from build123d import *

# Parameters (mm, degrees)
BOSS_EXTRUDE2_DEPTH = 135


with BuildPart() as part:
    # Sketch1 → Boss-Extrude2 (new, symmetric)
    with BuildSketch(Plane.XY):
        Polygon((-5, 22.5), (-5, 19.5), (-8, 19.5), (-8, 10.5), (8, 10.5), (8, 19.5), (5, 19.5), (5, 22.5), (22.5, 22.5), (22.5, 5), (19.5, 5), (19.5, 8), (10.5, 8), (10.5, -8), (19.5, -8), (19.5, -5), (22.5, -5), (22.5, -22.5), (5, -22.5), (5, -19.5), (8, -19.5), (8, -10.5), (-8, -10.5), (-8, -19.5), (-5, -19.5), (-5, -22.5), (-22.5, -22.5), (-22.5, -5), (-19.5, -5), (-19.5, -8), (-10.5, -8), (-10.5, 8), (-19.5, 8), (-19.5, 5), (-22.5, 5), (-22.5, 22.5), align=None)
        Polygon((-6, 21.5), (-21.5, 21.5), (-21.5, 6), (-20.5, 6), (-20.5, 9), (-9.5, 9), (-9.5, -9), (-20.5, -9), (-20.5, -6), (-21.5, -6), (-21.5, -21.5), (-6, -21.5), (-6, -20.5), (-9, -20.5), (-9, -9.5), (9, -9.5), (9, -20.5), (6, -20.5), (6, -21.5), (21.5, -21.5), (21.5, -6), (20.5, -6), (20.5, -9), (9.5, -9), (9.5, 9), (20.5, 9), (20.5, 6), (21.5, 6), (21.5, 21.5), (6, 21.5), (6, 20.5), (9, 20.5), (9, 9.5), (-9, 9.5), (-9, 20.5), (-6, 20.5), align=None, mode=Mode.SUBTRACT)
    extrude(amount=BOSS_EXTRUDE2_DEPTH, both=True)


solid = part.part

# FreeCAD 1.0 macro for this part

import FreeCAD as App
import Part
import Sketcher

doc = App.newDocument("Part")
body = doc.addObject("PartDesign::Body", "Body")

# Sketch on XY plane
sketch1 = doc.addObject("Sketcher::SketchObject", "Sketch")
body.addObject(sketch1)
sketch1.AttachmentSupport = (doc.XY_Plane, [""])
sketch1.MapMode = "FlatFace"
sketch1.addGeometry(Part.LineSegment(App.Vector(-5, 19.5, 0), App.Vector(-5, 22.5, 0)), False)
sketch1.addGeometry(Part.LineSegment(App.Vector(-5, 22.5, 0), App.Vector(-22.5, 22.5, 0)), False)
sketch1.addGeometry(Part.LineSegment(App.Vector(-22.5, 22.5, 0), App.Vector(-22.5, 5, 0)), False)
sketch1.addGeometry(Part.LineSegment(App.Vector(-22.5, 5, 0), App.Vector(-19.5, 5, 0)), False)
sketch1.addGeometry(Part.LineSegment(App.Vector(-19.5, 5, 0), App.Vector(-19.5, 8, 0)), False)
sketch1.addGeometry(Part.LineSegment(App.Vector(-19.5, 8, 0), App.Vector(-10.5, 8, 0)), False)
sketch1.addGeometry(Part.LineSegment(App.Vector(-10.5, 8, 0), App.Vector(-10.5, -8, 0)), False)
sketch1.addGeometry(Part.LineSegment(App.Vector(-10.5, -8, 0), App.Vector(-19.5, -8, 0)), False)
sketch1.addGeometry(Part.LineSegment(App.Vector(-19.5, -8, 0), App.Vector(-19.5, -5, 0)), False)
sketch1.addGeometry(Part.LineSegment(App.Vector(-19.5, -5, 0), App.Vector(-22.5, -5, 0)), False)
sketch1.addGeometry(Part.LineSegment(App.Vector(-22.5, -5, 0), App.Vector(-22.5, -22.5, 0)), False)
sketch1.addGeometry(Part.LineSegment(App.Vector(-22.5, -22.5, 0), App.Vector(-5, -22.5, 0)), False)
sketch1.addGeometry(Part.LineSegment(App.Vector(-5, -22.5, 0), App.Vector(-5, -19.5, 0)), False)
sketch1.addGeometry(Part.LineSegment(App.Vector(-5, -19.5, 0), App.Vector(-8, -19.5, 0)), False)
sketch1.addGeometry(Part.LineSegment(App.Vector(-8, -19.5, 0), App.Vector(-8, -10.5, 0)), False)
sketch1.addGeometry(Part.LineSegment(App.Vector(-8, -10.5, 0), App.Vector(8, -10.5, 0)), False)
sketch1.addGeometry(Part.LineSegment(App.Vector(8, -10.5, 0), App.Vector(8, -19.5, 0)), False)
sketch1.addGeometry(Part.LineSegment(App.Vector(8, -19.5, 0), App.Vector(5, -19.5, 0)), False)
sketch1.addGeometry(Part.LineSegment(App.Vector(5, -19.5, 0), App.Vector(5, -22.5, 0)), False)
sketch1.addGeometry(Part.LineSegment(App.Vector(5, -22.5, 0), App.Vector(22.5, -22.5, 0)), False)
sketch1.addGeometry(Part.LineSegment(App.Vector(22.5, -22.5, 0), App.Vector(22.5, -5, 0)), False)
sketch1.addGeometry(Part.LineSegment(App.Vector(22.5, -5, 0), App.Vector(19.5, -5, 0)), False)
sketch1.addGeometry(Part.LineSegment(App.Vector(19.5, -5, 0), App.Vector(19.5, -8, 0)), False)
sketch1.addGeometry(Part.LineSegment(App.Vector(19.5, -8, 0), App.Vector(10.5, -8, 0)), False)
sketch1.addGeometry(Part.LineSegment(App.Vector(10.5, -8, 0), App.Vector(10.5, 8, 0)), False)
sketch1.addGeometry(Part.LineSegment(App.Vector(10.5, 8, 0), App.Vector(19.5, 8, 0)), False)
sketch1.addGeometry(Part.LineSegment(App.Vector(19.5, 8, 0), App.Vector(19.5, 5, 0)), False)
sketch1.addGeometry(Part.LineSegment(App.Vector(19.5, 5, 0), App.Vector(22.5, 5, 0)), False)
sketch1.addGeometry(Part.LineSegment(App.Vector(22.5, 5, 0), App.Vector(22.5, 22.5, 0)), False)
sketch1.addGeometry(Part.LineSegment(App.Vector(22.5, 22.5, 0), App.Vector(5, 22.5, 0)), False)
sketch1.addGeometry(Part.LineSegment(App.Vector(5, 22.5, 0), App.Vector(5, 19.5, 0)), False)
sketch1.addGeometry(Part.LineSegment(App.Vector(5, 19.5, 0), App.Vector(8, 19.5, 0)), False)
sketch1.addGeometry(Part.LineSegment(App.Vector(8, 19.5, 0), App.Vector(8, 10.5, 0)), False)
sketch1.addGeometry(Part.LineSegment(App.Vector(8, 10.5, 0), App.Vector(-8, 10.5, 0)), False)
sketch1.addGeometry(Part.LineSegment(App.Vector(-8, 10.5, 0), App.Vector(-8, 19.5, 0)), False)
sketch1.addGeometry(Part.LineSegment(App.Vector(-8, 19.5, 0), App.Vector(-5, 19.5, 0)), False)
sketch1.addGeometry(Part.LineSegment(App.Vector(-6, 21.5, 0), App.Vector(-6, 20.5, 0)), False)
sketch1.addGeometry(Part.LineSegment(App.Vector(-6, 20.5, 0), App.Vector(-9, 20.5, 0)), False)
sketch1.addGeometry(Part.LineSegment(App.Vector(-9, 20.5, 0), App.Vector(-9, 9.5, 0)), False)
sketch1.addGeometry(Part.LineSegment(App.Vector(-9, 9.5, 0), App.Vector(9, 9.5, 0)), False)
sketch1.addGeometry(Part.LineSegment(App.Vector(9, 9.5, 0), App.Vector(9, 20.5, 0)), False)
sketch1.addGeometry(Part.LineSegment(App.Vector(9, 20.5, 0), App.Vector(6, 20.5, 0)), False)
sketch1.addGeometry(Part.LineSegment(App.Vector(6, 20.5, 0), App.Vector(6, 21.5, 0)), False)
sketch1.addGeometry(Part.LineSegment(App.Vector(6, 21.5, 0), App.Vector(21.5, 21.5, 0)), False)
sketch1.addGeometry(Part.LineSegment(App.Vector(21.5, 21.5, 0), App.Vector(21.5, 6, 0)), False)
sketch1.addGeometry(Part.LineSegment(App.Vector(21.5, 6, 0), App.Vector(20.5, 6, 0)), False)
sketch1.addGeometry(Part.LineSegment(App.Vector(20.5, 6, 0), App.Vector(20.5, 9, 0)), False)
sketch1.addGeometry(Part.LineSegment(App.Vector(20.5, 9, 0), App.Vector(9.5, 9, 0)), False)
sketch1.addGeometry(Part.LineSegment(App.Vector(9.5, 9, 0), App.Vector(9.5, -9, 0)), False)
sketch1.addGeometry(Part.LineSegment(App.Vector(9.5, -9, 0), App.Vector(20.5, -9, 0)), False)
sketch1.addGeometry(Part.LineSegment(App.Vector(20.5, -9, 0), App.Vector(20.5, -6, 0)), False)
sketch1.addGeometry(Part.LineSegment(App.Vector(20.5, -6, 0), App.Vector(21.5, -6, 0)), False)
sketch1.addGeometry(Part.LineSegment(App.Vector(21.5, -6, 0), App.Vector(21.5, -21.5, 0)), False)
sketch1.addGeometry(Part.LineSegment(App.Vector(21.5, -21.5, 0), App.Vector(6, -21.5, 0)), False)
sketch1.addGeometry(Part.LineSegment(App.Vector(6, -21.5, 0), App.Vector(6, -20.5, 0)), False)
sketch1.addGeometry(Part.LineSegment(App.Vector(6, -20.5, 0), App.Vector(9, -20.5, 0)), False)
sketch1.addGeometry(Part.LineSegment(App.Vector(9, -20.5, 0), App.Vector(9, -9.5, 0)), False)
sketch1.addGeometry(Part.LineSegment(App.Vector(9, -9.5, 0), App.Vector(-9, -9.5, 0)), False)
sketch1.addGeometry(Part.LineSegment(App.Vector(-9, -9.5, 0), App.Vector(-9, -20.5, 0)), False)
sketch1.addGeometry(Part.LineSegment(App.Vector(-9, -20.5, 0), App.Vector(-6, -20.5, 0)), False)
sketch1.addGeometry(Part.LineSegment(App.Vector(-6, -20.5, 0), App.Vector(-6, -21.5, 0)), False)
sketch1.addGeometry(Part.LineSegment(App.Vector(-6, -21.5, 0), App.Vector(-21.5, -21.5, 0)), False)
sketch1.addGeometry(Part.LineSegment(App.Vector(-21.5, -21.5, 0), App.Vector(-21.5, -6, 0)), False)
sketch1.addGeometry(Part.LineSegment(App.Vector(-21.5, -6, 0), App.Vector(-20.5, -6, 0)), False)
sketch1.addGeometry(Part.LineSegment(App.Vector(-20.5, -6, 0), App.Vector(-20.5, -9, 0)), False)
sketch1.addGeometry(Part.LineSegment(App.Vector(-20.5, -9, 0), App.Vector(-9.5, -9, 0)), False)
sketch1.addGeometry(Part.LineSegment(App.Vector(-9.5, -9, 0), App.Vector(-9.5, 9, 0)), False)
sketch1.addGeometry(Part.LineSegment(App.Vector(-9.5, 9, 0), App.Vector(-20.5, 9, 0)), False)
sketch1.addGeometry(Part.LineSegment(App.Vector(-20.5, 9, 0), App.Vector(-20.5, 6, 0)), False)
sketch1.addGeometry(Part.LineSegment(App.Vector(-20.5, 6, 0), App.Vector(-21.5, 6, 0)), False)
sketch1.addGeometry(Part.LineSegment(App.Vector(-21.5, 6, 0), App.Vector(-21.5, 21.5, 0)), False)
sketch1.addGeometry(Part.LineSegment(App.Vector(-21.5, 21.5, 0), App.Vector(-6, 21.5, 0)), False)
sketch1.addConstraint(Sketcher.Constraint("Coincident", 0, 2, 1, 1))
sketch1.addConstraint(Sketcher.Constraint("Coincident", 1, 2, 2, 1))
sketch1.addConstraint(Sketcher.Constraint("Coincident", 2, 2, 3, 1))
sketch1.addConstraint(Sketcher.Constraint("Coincident", 3, 2, 4, 1))
sketch1.addConstraint(Sketcher.Constraint("Coincident", 4, 2, 5, 1))
sketch1.addConstraint(Sketcher.Constraint("Coincident", 5, 2, 6, 1))
sketch1.addConstraint(Sketcher.Constraint("Coincident", 6, 2, 7, 1))
sketch1.addConstraint(Sketcher.Constraint("Coincident", 7, 2, 8, 1))
sketch1.addConstraint(Sketcher.Constraint("Coincident", 8, 2, 9, 1))
sketch1.addConstraint(Sketcher.Constraint("Coincident", 9, 2, 10, 1))
sketch1.addConstraint(Sketcher.Constraint("Coincident", 10, 2, 11, 1))
sketch1.addConstraint(Sketcher.Constraint("Coincident", 11, 2, 12, 1))
sketch1.addConstraint(Sketcher.Constraint("Coincident", 12, 2, 13, 1))
sketch1.addConstraint(Sketcher.Constraint("Coincident", 13, 2, 14, 1))
sketch1.addConstraint(Sketcher.Constraint("Coincident", 14, 2, 15, 1))
sketch1.addConstraint(Sketcher.Constraint("Coincident", 15, 2, 16, 1))
sketch1.addConstraint(Sketcher.Constraint("Coincident", 16, 2, 17, 1))
sketch1.addConstraint(Sketcher.Constraint("Coincident", 17, 2, 18, 1))
sketch1.addConstraint(Sketcher.Constraint("Coincident", 18, 2, 19, 1))
sketch1.addConstraint(Sketcher.Constraint("Coincident", 19, 2, 20, 1))
sketch1.addConstraint(Sketcher.Constraint("Coincident", 20, 2, 21, 1))
sketch1.addConstraint(Sketcher.Constraint("Coincident", 21, 2, 22, 1))
sketch1.addConstraint(Sketcher.Constraint("Coincident", 22, 2, 23, 1))
sketch1.addConstraint(Sketcher.Constraint("Coincident", 23, 2, 24, 1))
sketch1.addConstraint(Sketcher.Constraint("Coincident", 24, 2, 25, 1))
sketch1.addConstraint(Sketcher.Constraint("Coincident", 25, 2, 26, 1))
sketch1.addConstraint(Sketcher.Constraint("Coincident", 26, 2, 27, 1))
sketch1.addConstraint(Sketcher.Constraint("Coincident", 27, 2, 28, 1))
sketch1.addConstraint(Sketcher.Constraint("Coincident", 28, 2, 29, 1))
sketch1.addConstraint(Sketcher.Constraint("Coincident", 29, 2, 30, 1))
sketch1.addConstraint(Sketcher.Constraint("Coincident", 30, 2, 31, 1))
sketch1.addConstraint(Sketcher.Constraint("Coincident", 31, 2, 32, 1))
sketch1.addConstraint(Sketcher.Constraint("Coincident", 32, 2, 33, 1))
sketch1.addConstraint(Sketcher.Constraint("Coincident", 33, 2, 34, 1))
sketch1.addConstraint(Sketcher.Constraint("Coincident", 34, 2, 35, 1))
sketch1.addConstraint(Sketcher.Constraint("Coincident", 35, 2, 0, 1))
sketch1.addConstraint(Sketcher.Constraint("Coincident", 36, 2, 37, 1))
sketch1.addConstraint(Sketcher.Constraint("Coincident", 37, 2, 38, 1))
sketch1.addConstraint(Sketcher.Constraint("Coincident", 38, 2, 39, 1))
sketch1.addConstraint(Sketcher.Constraint("Coincident", 39, 2, 40, 1))
sketch1.addConstraint(Sketcher.Constraint("Coincident", 40, 2, 41, 1))
sketch1.addConstraint(Sketcher.Constraint("Coincident", 41, 2, 42, 1))
sketch1.addConstraint(Sketcher.Constraint("Coincident", 42, 2, 43, 1))
sketch1.addConstraint(Sketcher.Constraint("Coincident", 43, 2, 44, 1))
sketch1.addConstraint(Sketcher.Constraint("Coincident", 44, 2, 45, 1))
sketch1.addConstraint(Sketcher.Constraint("Coincident", 45, 2, 46, 1))
sketch1.addConstraint(Sketcher.Constraint("Coincident", 46, 2, 47, 1))
sketch1.addConstraint(Sketcher.Constraint("Coincident", 47, 2, 48, 1))
sketch1.addConstraint(Sketcher.Constraint("Coincident", 48, 2, 49, 1))
sketch1.addConstraint(Sketcher.Constraint("Coincident", 49, 2, 50, 1))
sketch1.addConstraint(Sketcher.Constraint("Coincident", 50, 2, 51, 1))
sketch1.addConstraint(Sketcher.Constraint("Coincident", 51, 2, 52, 1))
sketch1.addConstraint(Sketcher.Constraint("Coincident", 52, 2, 53, 1))
sketch1.addConstraint(Sketcher.Constraint("Coincident", 53, 2, 54, 1))
sketch1.addConstraint(Sketcher.Constraint("Coincident", 54, 2, 55, 1))
sketch1.addConstraint(Sketcher.Constraint("Coincident", 55, 2, 56, 1))
sketch1.addConstraint(Sketcher.Constraint("Coincident", 56, 2, 57, 1))
sketch1.addConstraint(Sketcher.Constraint("Coincident", 57, 2, 58, 1))
sketch1.addConstraint(Sketcher.Constraint("Coincident", 58, 2, 59, 1))
sketch1.addConstraint(Sketcher.Constraint("Coincident", 59, 2, 60, 1))
sketch1.addConstraint(Sketcher.Constraint("Coincident", 60, 2, 61, 1))
sketch1.addConstraint(Sketcher.Constraint("Coincident", 61, 2, 62, 1))
sketch1.addConstraint(Sketcher.Constraint("Coincident", 62, 2, 63, 1))
sketch1.addConstraint(Sketcher.Constraint("Coincident", 63, 2, 64, 1))
sketch1.addConstraint(Sketcher.Constraint("Coincident", 64, 2, 65, 1))
sketch1.addConstraint(Sketcher.Constraint("Coincident", 65, 2, 66, 1))
sketch1.addConstraint(Sketcher.Constraint("Coincident", 66, 2, 67, 1))
sketch1.addConstraint(Sketcher.Constraint("Coincident", 67, 2, 68, 1))
sketch1.addConstraint(Sketcher.Constraint("Coincident", 68, 2, 69, 1))
sketch1.addConstraint(Sketcher.Constraint("Coincident", 69, 2, 70, 1))
sketch1.addConstraint(Sketcher.Constraint("Coincident", 70, 2, 71, 1))
sketch1.addConstraint(Sketcher.Constraint("Coincident", 71, 2, 36, 1))
sketch1.addConstraint(Sketcher.Constraint("Vertical", 0))
sketch1.addConstraint(Sketcher.Constraint("Horizontal", 1))
sketch1.addConstraint(Sketcher.Constraint("Vertical", 2))
sketch1.addConstraint(Sketcher.Constraint("Horizontal", 3))
sketch1.addConstraint(Sketcher.Constraint("Vertical", 4))
sketch1.addConstraint(Sketcher.Constraint("Horizontal", 5))
sketch1.addConstraint(Sketcher.Constraint("Vertical", 6))
sketch1.addConstraint(Sketcher.Constraint("Horizontal", 7))
sketch1.addConstraint(Sketcher.Constraint("Vertical", 8))
sketch1.addConstraint(Sketcher.Constraint("Horizontal", 9))
sketch1.addConstraint(Sketcher.Constraint("Vertical", 10))
sketch1.addConstraint(Sketcher.Constraint("Horizontal", 11))
sketch1.addConstraint(Sketcher.Constraint("Vertical", 12))
sketch1.addConstraint(Sketcher.Constraint("Horizontal", 13))
sketch1.addConstraint(Sketcher.Constraint("Vertical", 14))
sketch1.addConstraint(Sketcher.Constraint("Horizontal", 15))
sketch1.addConstraint(Sketcher.Constraint("Vertical", 16))
sketch1.addConstraint(Sketcher.Constraint("Horizontal", 17))
sketch1.addConstraint(Sketcher.Constraint("Vertical", 18))
sketch1.addConstraint(Sketcher.Constraint("Horizontal", 19))
sketch1.addConstraint(Sketcher.Constraint("Vertical", 20))
sketch1.addConstraint(Sketcher.Constraint("Horizontal", 21))
sketch1.addConstraint(Sketcher.Constraint("Vertical", 22))
sketch1.addConstraint(Sketcher.Constraint("Horizontal", 23))
sketch1.addConstraint(Sketcher.Constraint("Vertical", 24))
sketch1.addConstraint(Sketcher.Constraint("Horizontal", 25))
sketch1.addConstraint(Sketcher.Constraint("Vertical", 26))
sketch1.addConstraint(Sketcher.Constraint("Horizontal", 27))
sketch1.addConstraint(Sketcher.Constraint("Vertical", 28))
sketch1.addConstraint(Sketcher.Constraint("Horizontal", 29))
sketch1.addConstraint(Sketcher.Constraint("Vertical", 30))
sketch1.addConstraint(Sketcher.Constraint("Horizontal", 31))
sketch1.addConstraint(Sketcher.Constraint("Vertical", 32))
sketch1.addConstraint(Sketcher.Constraint("Horizontal", 33))
sketch1.addConstraint(Sketcher.Constraint("Vertical", 34))
sketch1.addConstraint(Sketcher.Constraint("Horizontal", 35))
sketch1.addConstraint(Sketcher.Constraint("Vertical", 36))
sketch1.addConstraint(Sketcher.Constraint("Horizontal", 37))
sketch1.addConstraint(Sketcher.Constraint("Vertical", 38))
sketch1.addConstraint(Sketcher.Constraint("Horizontal", 39))
sketch1.addConstraint(Sketcher.Constraint("Vertical", 40))
sketch1.addConstraint(Sketcher.Constraint("Horizontal", 41))
sketch1.addConstraint(Sketcher.Constraint("Vertical", 42))
sketch1.addConstraint(Sketcher.Constraint("Horizontal", 43))
sketch1.addConstraint(Sketcher.Constraint("Vertical", 44))
sketch1.addConstraint(Sketcher.Constraint("Horizontal", 45))
sketch1.addConstraint(Sketcher.Constraint("Vertical", 46))
sketch1.addConstraint(Sketcher.Constraint("Horizontal", 47))
sketch1.addConstraint(Sketcher.Constraint("Vertical", 48))
sketch1.addConstraint(Sketcher.Constraint("Horizontal", 49))
sketch1.addConstraint(Sketcher.Constraint("Vertical", 50))
sketch1.addConstraint(Sketcher.Constraint("Horizontal", 51))
sketch1.addConstraint(Sketcher.Constraint("Vertical", 52))
sketch1.addConstraint(Sketcher.Constraint("Horizontal", 53))
sketch1.addConstraint(Sketcher.Constraint("Vertical", 54))
sketch1.addConstraint(Sketcher.Constraint("Horizontal", 55))
sketch1.addConstraint(Sketcher.Constraint("Vertical", 56))
sketch1.addConstraint(Sketcher.Constraint("Horizontal", 57))
sketch1.addConstraint(Sketcher.Constraint("Vertical", 58))
sketch1.addConstraint(Sketcher.Constraint("Horizontal", 59))
sketch1.addConstraint(Sketcher.Constraint("Vertical", 60))
sketch1.addConstraint(Sketcher.Constraint("Horizontal", 61))
sketch1.addConstraint(Sketcher.Constraint("Vertical", 62))
sketch1.addConstraint(Sketcher.Constraint("Horizontal", 63))
sketch1.addConstraint(Sketcher.Constraint("Vertical", 64))
sketch1.addConstraint(Sketcher.Constraint("Horizontal", 65))
sketch1.addConstraint(Sketcher.Constraint("Vertical", 66))
sketch1.addConstraint(Sketcher.Constraint("Horizontal", 67))
sketch1.addConstraint(Sketcher.Constraint("Vertical", 68))
sketch1.addConstraint(Sketcher.Constraint("Horizontal", 69))
sketch1.addConstraint(Sketcher.Constraint("Vertical", 70))
sketch1.addConstraint(Sketcher.Constraint("Horizontal", 71))
sketch1.addConstraint(Sketcher.Constraint("Symmetric", 0, 2, 18, 2, -1, 1))
sketch1.addConstraint(Sketcher.Constraint("Symmetric", 2, 2, 20, 2, -1, 1))
sketch1.addConstraint(Sketcher.Constraint("Symmetric", 4, 2, 22, 2, -1, 1))
sketch1.addConstraint(Sketcher.Constraint("Symmetric", 6, 2, 24, 2, -1, 1))
sketch1.addConstraint(Sketcher.Constraint("Symmetric", 8, 2, 26, 2, -1, 1))
sketch1.addConstraint(Sketcher.Constraint("Symmetric", 10, 2, 28, 2, -1, 1))
sketch1.addConstraint(Sketcher.Constraint("Symmetric", 12, 2, 30, 2, -1, 1))
sketch1.addConstraint(Sketcher.Constraint("Symmetric", 14, 2, 32, 2, -1, 1))
sketch1.addConstraint(Sketcher.Constraint("Symmetric", 16, 2, 34, 2, -1, 1))
sketch1.addConstraint(Sketcher.Constraint("Symmetric", 36, 2, 54, 2, -1, 1))
sketch1.addConstraint(Sketcher.Constraint("Symmetric", 38, 2, 56, 2, -1, 1))
sketch1.addConstraint(Sketcher.Constraint("Symmetric", 40, 2, 58, 2, -1, 1))
sketch1.addConstraint(Sketcher.Constraint("Symmetric", 42, 2, 60, 2, -1, 1))
sketch1.addConstraint(Sketcher.Constraint("Symmetric", 44, 2, 62, 2, -1, 1))
sketch1.addConstraint(Sketcher.Constraint("Symmetric", 46, 2, 64, 2, -1, 1))
sketch1.addConstraint(Sketcher.Constraint("Symmetric", 48, 2, 66, 2, -1, 1))
sketch1.addConstraint(Sketcher.Constraint("Symmetric", 50, 2, 68, 2, -1, 1))
sketch1.addConstraint(Sketcher.Constraint("Symmetric", 52, 2, 70, 2, -1, 1))
sketch1.addConstraint(Sketcher.Constraint("Symmetric", 13, 2, 16, 2, -2))
sketch1.addConstraint(Sketcher.Constraint("Symmetric", 11, 2, 18, 2, -2))
sketch1.addConstraint(Sketcher.Constraint("Symmetric", 9, 2, 20, 2, -2))
sketch1.addConstraint(Sketcher.Constraint("Symmetric", 7, 2, 22, 2, -2))
sketch1.addConstraint(Sketcher.Constraint("Symmetric", 37, 2, 40, 2, -2))
sketch1.addConstraint(Sketcher.Constraint("Symmetric", 53, 2, 60, 2, -2))
sketch1.addConstraint(Sketcher.Constraint("Symmetric", 51, 2, 62, 2, -2))
sketch1.addConstraint(Sketcher.Constraint("Symmetric", 49, 2, 64, 2, -2))
sketch1.addConstraint(Sketcher.Constraint("Equal", 9, 13))
sketch1.addConstraint(Sketcher.Constraint("Equal", 35, 37))
sketch1.addConstraint(Sketcher.Constraint("Equal", 59, 0))
sketch1.addConstraint(Sketcher.Constraint("Equal", 29, 2))
sketch1.addConstraint(Sketcher.Constraint("Equal", 0, 4))
sketch1.addConstraint(Sketcher.Constraint("Equal", 33, 6))
sketch1.addConstraint(Sketcher.Constraint("Equal", 25, 14))
sketch1.addConstraint(Sketcher.Constraint("Equal", 69, 36))
sketch1.addConstraint(Sketcher.Constraint("Equal", 67, 38))
sketch1.addConstraint(Sketcher.Constraint("Equal", 71, 44))
sketch1.addConstraint(Sketcher.Constraint("Equal", 30, 46))
sketch1.addConstraint(Sketcher.Constraint("Equal", 57, 48))
sketch1.addConstraint(Sketcher.Constraint("DistanceX", 3, 1, 3, 2, 3.0))
sketch1.addConstraint(Sketcher.Constraint("DistanceX", 5, 1, 5, 2, 9.0))
sketch1.addConstraint(Sketcher.Constraint("DistanceX", 15, 1, 15, 2, 16.0))
sketch1.addConstraint(Sketcher.Constraint("DistanceX", 39, 1, 39, 2, 18.0))
sketch1.addConstraint(Sketcher.Constraint("DistanceX", 45, 2, 45, 1, 1.0))
sketch1.addConstraint(Sketcher.Constraint("DistanceX", 47, 2, 47, 1, 11.0))
sketch1.addConstraint(Sketcher.Constraint("DistanceX", 1, 2, 1, 1, 17.5))
sketch1.addConstraint(Sketcher.Constraint("DistanceX", 43, 1, 43, 2, 15.5))
pad1 = doc.addObject("PartDesign::Pad", "Pad")
body.addObject(pad1)
pad1.Profile = sketch1
pad1.Length = 270
pad1.Midplane = True

doc.recompute()
